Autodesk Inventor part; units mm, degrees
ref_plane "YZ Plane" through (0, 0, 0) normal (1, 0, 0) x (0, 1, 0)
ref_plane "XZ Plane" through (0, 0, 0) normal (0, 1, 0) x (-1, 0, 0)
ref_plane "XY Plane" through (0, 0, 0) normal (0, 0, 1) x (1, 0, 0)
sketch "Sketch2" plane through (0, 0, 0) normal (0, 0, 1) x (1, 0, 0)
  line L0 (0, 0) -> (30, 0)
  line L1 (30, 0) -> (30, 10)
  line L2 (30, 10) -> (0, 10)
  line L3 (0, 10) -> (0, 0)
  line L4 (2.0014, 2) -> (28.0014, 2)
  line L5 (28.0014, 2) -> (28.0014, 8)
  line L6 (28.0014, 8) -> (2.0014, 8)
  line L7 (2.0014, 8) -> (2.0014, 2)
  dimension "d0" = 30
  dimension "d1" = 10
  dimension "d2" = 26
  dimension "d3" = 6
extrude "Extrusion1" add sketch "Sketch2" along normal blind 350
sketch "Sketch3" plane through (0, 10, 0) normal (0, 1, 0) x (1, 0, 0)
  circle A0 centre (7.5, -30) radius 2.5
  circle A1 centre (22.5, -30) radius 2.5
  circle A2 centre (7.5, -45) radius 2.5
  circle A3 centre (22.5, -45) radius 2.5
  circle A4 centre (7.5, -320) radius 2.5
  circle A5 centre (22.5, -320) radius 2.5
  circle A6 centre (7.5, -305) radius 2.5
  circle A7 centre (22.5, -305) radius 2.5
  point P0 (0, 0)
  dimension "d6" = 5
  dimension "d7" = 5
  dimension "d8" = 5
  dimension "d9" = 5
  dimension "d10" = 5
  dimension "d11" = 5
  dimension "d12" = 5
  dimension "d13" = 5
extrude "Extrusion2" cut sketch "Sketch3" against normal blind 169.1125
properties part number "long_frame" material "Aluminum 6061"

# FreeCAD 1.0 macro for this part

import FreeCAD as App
import Part
import Sketcher

V = App.Vector


def add_polygon(sketch, points):
    """Adds a closed chain of lines whose ends are joined by coincident constraints."""
    first, n = sketch.GeometryCount, len(points)
    for a, b in zip(points, points[1:] + points[:1]):
        sketch.addGeometry(Part.LineSegment(App.Vector(*a, 0), App.Vector(*b, 0)), False)
    for i in range(n):
        sketch.addConstraint(Sketcher.Constraint("Coincident", first + i, 2, first + (i + 1) % n, 1))

doc = App.newDocument("Part")
body = doc.addObject("PartDesign::Body", "Body")

sketch1 = body.newObject("Sketcher::SketchObject", "Sketch")
sketch1.AttachmentSupport = (doc.getObject("XY_Plane"), [""])
sketch1.MapMode = "FlatFace"
add_polygon(sketch1, [(0, 10), (0, 0), (30, 0), (30, 10)])
add_polygon(sketch1, [(28, 2), (2, 2), (2, 8), (28, 8)])
sketch1.addConstraint([
    Sketcher.Constraint("Vertical", 0),
    Sketcher.Constraint("Horizontal", 1),
    Sketcher.Constraint("Vertical", 2),
    Sketcher.Constraint("Horizontal", 3),
    Sketcher.Constraint("Horizontal", 4),
    Sketcher.Constraint("Vertical", 5),
    Sketcher.Constraint("Horizontal", 6),
    Sketcher.Constraint("Vertical", 7),
    Sketcher.Constraint("Coincident", 0, 2, -1, 1),
    Sketcher.Constraint("DistanceX", 1, 1, 1, 2, 30.0),
    Sketcher.Constraint("DistanceX", 4, 2, 4, 1, 26.0),
    Sketcher.Constraint("DistanceY", 0, 2, 0, 1, 10.0),
    Sketcher.Constraint("DistanceY", 5, 1, 5, 2, 6.0),
    Sketcher.Constraint("DistanceY", -1, 1, 4, 2, 2.0),
    Sketcher.Constraint("DistanceX", -1, 1, 4, 2, 2.0014),
])
pad1 = body.newObject("PartDesign::Pad", "Pad")
pad1.Profile = sketch1
pad1.Length = 350

sketch2 = body.newObject("Sketcher::SketchObject", "Sketch001")
sketch2.AttachmentSupport = (doc.getObject("XZ_Plane"), [""])
sketch2.MapMode = "FlatFace"
sketch2.AttachmentOffset = App.Placement(V(0, 0, -10), App.Rotation())
sketch2.addGeometry([
    Part.Circle(V(7.5, 30, 0), V(0, 0, 1), 2.5),
    Part.Circle(V(22.5, 30, 0), V(0, 0, 1), 2.5),
    Part.Circle(V(7.5, 45, 0), V(0, 0, 1), 2.5),
    Part.Circle(V(22.5, 45, 0), V(0, 0, 1), 2.5),
    Part.Circle(V(7.5, 320, 0), V(0, 0, 1), 2.5),
    Part.Circle(V(22.5, 320, 0), V(0, 0, 1), 2.5),
    Part.Circle(V(7.5, 305, 0), V(0, 0, 1), 2.5),
    Part.Circle(V(22.5, 305, 0), V(0, 0, 1), 2.5),
], False)
sketch2.addConstraint([
    Sketcher.Constraint("Equal", 0, 1),
    Sketcher.Constraint("Equal", 1, 2),
    Sketcher.Constraint("Equal", 2, 3),
    Sketcher.Constraint("Equal", 3, 4),
    Sketcher.Constraint("Equal", 4, 5),
    Sketcher.Constraint("Equal", 5, 6),
    Sketcher.Constraint("Equal", 6, 7),
    Sketcher.Constraint("Horizontal", 0, 3, 1, 3),
    Sketcher.Constraint("Horizontal", 2, 3, 3, 3),
    Sketcher.Constraint("Horizontal", 4, 3, 5, 3),
    Sketcher.Constraint("Horizontal", 6, 3, 7, 3),
    Sketcher.Constraint("Vertical", 0, 3, 2, 3),
    Sketcher.Constraint("Vertical", 1, 3, 3, 3),
    Sketcher.Constraint("Vertical", 2, 3, 4, 3),
    Sketcher.Constraint("Vertical", 3, 3, 5, 3),
    Sketcher.Constraint("Vertical", 4, 3, 6, 3),
    Sketcher.Constraint("Vertical", 5, 3, 7, 3),
    Sketcher.Constraint("Diameter", 0, 5.0),
    Sketcher.Constraint("DistanceY", -1, 1, 0, 3, 30.0),
    Sketcher.Constraint("DistanceY", -1, 1, 2, 3, 45.0),
    Sketcher.Constraint("DistanceY", -1, 1, 4, 3, 320.0),
    Sketcher.Constraint("DistanceY", -1, 1, 6, 3, 305.0),
    Sketcher.Constraint("DistanceX", 0, 3, 1, 3, 15.0),
    Sketcher.Constraint("DistanceX", -1, 1, 0, 3, 7.5),
])
pocket1 = body.newObject("PartDesign::Pocket", "Pocket")
pocket1.Profile = sketch2
pocket1.Length = 169.1125
pocket1.Reversed = True

doc.recompute()
